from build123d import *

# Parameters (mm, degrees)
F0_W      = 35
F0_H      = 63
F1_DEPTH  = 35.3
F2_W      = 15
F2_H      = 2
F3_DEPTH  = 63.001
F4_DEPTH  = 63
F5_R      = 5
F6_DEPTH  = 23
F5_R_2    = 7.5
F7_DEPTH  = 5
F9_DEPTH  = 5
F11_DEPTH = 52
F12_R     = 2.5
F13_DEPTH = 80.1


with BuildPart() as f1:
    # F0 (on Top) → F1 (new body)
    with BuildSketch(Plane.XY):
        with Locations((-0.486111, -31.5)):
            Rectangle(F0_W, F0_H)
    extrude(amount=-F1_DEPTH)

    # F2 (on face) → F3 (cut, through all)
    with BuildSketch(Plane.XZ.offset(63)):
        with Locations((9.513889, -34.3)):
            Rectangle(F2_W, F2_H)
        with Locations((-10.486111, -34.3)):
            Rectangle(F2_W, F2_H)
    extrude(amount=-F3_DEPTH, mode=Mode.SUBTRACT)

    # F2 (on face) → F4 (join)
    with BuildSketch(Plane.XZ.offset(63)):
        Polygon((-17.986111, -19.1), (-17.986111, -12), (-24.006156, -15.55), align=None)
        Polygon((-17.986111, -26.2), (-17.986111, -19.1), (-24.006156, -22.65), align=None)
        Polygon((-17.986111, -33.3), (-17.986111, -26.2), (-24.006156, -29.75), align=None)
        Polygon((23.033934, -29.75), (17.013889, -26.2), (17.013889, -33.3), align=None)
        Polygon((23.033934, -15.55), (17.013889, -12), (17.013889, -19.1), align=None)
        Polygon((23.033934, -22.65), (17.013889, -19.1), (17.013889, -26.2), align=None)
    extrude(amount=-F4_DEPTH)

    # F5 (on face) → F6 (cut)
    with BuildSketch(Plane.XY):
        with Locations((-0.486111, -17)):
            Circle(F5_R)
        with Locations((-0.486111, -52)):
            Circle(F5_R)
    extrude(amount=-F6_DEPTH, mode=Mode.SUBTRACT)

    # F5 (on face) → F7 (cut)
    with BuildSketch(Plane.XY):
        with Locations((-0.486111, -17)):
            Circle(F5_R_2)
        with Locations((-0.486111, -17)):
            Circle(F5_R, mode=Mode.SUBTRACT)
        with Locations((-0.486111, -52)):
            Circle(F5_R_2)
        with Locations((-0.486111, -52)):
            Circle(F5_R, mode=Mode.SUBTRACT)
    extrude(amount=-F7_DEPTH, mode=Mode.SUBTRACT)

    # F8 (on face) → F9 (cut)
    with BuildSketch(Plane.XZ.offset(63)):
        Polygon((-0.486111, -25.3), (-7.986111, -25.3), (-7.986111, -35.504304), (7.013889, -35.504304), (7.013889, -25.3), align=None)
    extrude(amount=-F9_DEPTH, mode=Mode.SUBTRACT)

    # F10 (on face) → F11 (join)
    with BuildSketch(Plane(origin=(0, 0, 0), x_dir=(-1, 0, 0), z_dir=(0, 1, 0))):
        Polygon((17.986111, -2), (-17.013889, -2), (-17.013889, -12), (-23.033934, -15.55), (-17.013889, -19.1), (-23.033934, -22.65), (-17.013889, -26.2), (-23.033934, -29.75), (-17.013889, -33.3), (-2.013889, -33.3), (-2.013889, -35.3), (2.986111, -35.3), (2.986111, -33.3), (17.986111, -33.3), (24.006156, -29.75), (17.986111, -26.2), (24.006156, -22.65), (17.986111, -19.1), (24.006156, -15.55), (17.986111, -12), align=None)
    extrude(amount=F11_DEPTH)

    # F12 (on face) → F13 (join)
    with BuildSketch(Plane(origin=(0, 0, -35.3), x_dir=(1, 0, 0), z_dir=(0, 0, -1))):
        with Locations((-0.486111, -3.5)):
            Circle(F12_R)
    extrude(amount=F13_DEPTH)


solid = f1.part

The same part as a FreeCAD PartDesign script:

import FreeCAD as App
import Part
import Sketcher

V = App.Vector


def add_polygon(sketch, points):
    """Adds a closed chain of lines whose ends are joined by coincident constraints."""
    first, n = sketch.GeometryCount, len(points)
    for a, b in zip(points, points[1:] + points[:1]):
        sketch.addGeometry(Part.LineSegment(App.Vector(*a, 0), App.Vector(*b, 0)), False)
    for i in range(n):
        sketch.addConstraint(Sketcher.Constraint("Coincident", first + i, 2, first + (i + 1) % n, 1))

doc = App.newDocument("Part")
body = doc.addObject("PartDesign::Body", "Body")

# Sketch on XY plane
sketch1 = doc.addObject("Sketcher::SketchObject", "Sketch")
body.addObject(sketch1)
sketch1.AttachmentSupport = (doc.XY_Plane, [""])
sketch1.MapMode = "FlatFace"
add_polygon(sketch1, [(-18, 0), (-18, -63), (17, -63), (17, 0)])  # lines 0-3
sketch1.addConstraint([
    Sketcher.Constraint("Vertical", 0),
    Sketcher.Constraint("Horizontal", 1),
    Sketcher.Constraint("Vertical", 2),
    Sketcher.Constraint("Horizontal", 3),
    Sketcher.Constraint("PointOnObject", 2, 2, -1),
    Sketcher.Constraint("DistanceX", 1, 1, 1, 2, 35.0),
    Sketcher.Constraint("DistanceY", 0, 2, 0, 1, 63.0),
    Sketcher.Constraint("DistanceX", 0, 2, -1, 1, 17.986111),
])
pad1 = doc.addObject("PartDesign::Pad", "Pad")
body.addObject(pad1)
pad1.Profile = sketch1
pad1.Length = 35.3
pad1.Reversed = True

# Sketch on XZ plane
sketch2 = doc.addObject("Sketcher::SketchObject", "Sketch001")
body.addObject(sketch2)
sketch2.AttachmentSupport = (doc.XZ_Plane, [""])
sketch2.MapMode = "FlatFace"
sketch2.AttachmentOffset = App.Placement(V(0, 0, 63), App.Rotation())
add_polygon(sketch2, [(2, -33.3), (2, -35.3), (17, -35.3), (17, -33.3)])  # lines 0-3
add_polygon(sketch2, [(-18, -33.3), (-18, -35.3), (-3, -35.3), (-3, -33.3)])  # lines 4-7
sketch2.addConstraint([
    Sketcher.Constraint("Vertical", 0),
    Sketcher.Constraint("Horizontal", 1),
    Sketcher.Constraint("Vertical", 2),
    Sketcher.Constraint("Horizontal", 3),
    Sketcher.Constraint("Vertical", 4),
    Sketcher.Constraint("Horizontal", 5),
    Sketcher.Constraint("Vertical", 6),
    Sketcher.Constraint("Horizontal", 7),
    Sketcher.Constraint("Horizontal", 1, 2, 4, 2),
    Sketcher.Constraint("Horizontal", 3, 2, 6, 2),
    Sketcher.Constraint("Equal", 3, 5),
    Sketcher.Constraint("DistanceX", 1, 1, 1, 2, 15.0),
    Sketcher.Constraint("DistanceY", 0, 2, 0, 1, 2.0),
    Sketcher.Constraint("DistanceX", 4, 2, 0, 2, 20.0),
    Sketcher.Constraint("DistanceY", 0, 2, -1, 1, 35.3),
    Sketcher.Constraint("DistanceX", -1, 1, 0, 2, 2.013889),
])
pocket1 = doc.addObject("PartDesign::Pocket", "Pocket")
body.addObject(pocket1)
pocket1.Profile = sketch2
pocket1.Type = "ThroughAll"

# Sketch on XZ plane
sketch3 = doc.addObject("Sketcher::SketchObject", "Sketch002")
body.addObject(sketch3)
sketch3.AttachmentSupport = (doc.XZ_Plane, [""])
sketch3.MapMode = "FlatFace"
sketch3.AttachmentOffset = App.Placement(V(0, 0, 63), App.Rotation())
add_polygon(sketch3, [(-18, -19), (-18, -12), (-24, -16)])  # lines 0-2
add_polygon(sketch3, [(-18, -26), (-18, -19), (-24, -23)])  # lines 3-5
add_polygon(sketch3, [(-18, -33), (-18, -26), (-24, -30)])  # lines 6-8
add_polygon(sketch3, [(23, -30), (17, -26), (17, -33)])  # lines 9-11
add_polygon(sketch3, [(23, -16), (17, -12), (17, -19)])  # lines 12-14
add_polygon(sketch3, [(23, -23), (17, -19), (17, -26)])  # lines 15-17
sketch3.addConstraint([
    Sketcher.Constraint("Vertical", 0),
    Sketcher.Constraint("Vertical", 3),
    Sketcher.Constraint("Vertical", 6),
    Sketcher.Constraint("Vertical", 10),
    Sketcher.Constraint("Vertical", 13),
    Sketcher.Constraint("Vertical", 16),
    Sketcher.Constraint("Coincident", 3, 2, 2, 2),
    Sketcher.Constraint("Coincident", 6, 2, 5, 2),
    Sketcher.Constraint("Coincident", 15, 2, 13, 2),
    Sketcher.Constraint("Coincident", 16, 2, 9, 2),
    Sketcher.Constraint("Parallel", 1, 4),
    Sketcher.Constraint("Parallel", 2, 5),
    Sketcher.Constraint("Parallel", 4, 7),
    Sketcher.Constraint("Parallel", 5, 8),
    Sketcher.Constraint("Parallel", 8, 9),
    Sketcher.Constraint("Parallel", 7, 11),
    Sketcher.Constraint("Parallel", 9, 12),
    Sketcher.Constraint("Parallel", 11, 14),
    Sketcher.Constraint("Parallel", 12, 15),
    Sketcher.Constraint("Parallel", 14, 17),
    Sketcher.Constraint("Horizontal", 6, 2, 9, 2),
    Sketcher.Constraint("Horizontal", 8, 2, 10, 2),
    Sketcher.Constraint("Horizontal", 7, 2, 11, 2),
    Sketcher.Constraint("Horizontal", 0, 2, 12, 2),
    Sketcher.Constraint("Horizontal", 3, 2, 13, 2),
    Sketcher.Constraint("Vertical", 1, 2, 4, 2),
    Sketcher.Constraint("Vertical", 4, 2, 7, 2),
    Sketcher.Constraint("DistanceY", 0, 1, 0, 2, 7.1),
    Sketcher.Constraint("DistanceY", 0, 2, -1, 1, 12.0),
    Sketcher.Constraint("DistanceX", 5, 2, 9, 2, 35.0),
    Sketcher.Constraint("Distance", 1, 6.988808),
    Sketcher.Constraint("DistanceX", 0, 2, -1, 1, 17.986111),
])
pad2 = doc.addObject("PartDesign::Pad", "Pad001")
body.addObject(pad2)
pad2.Profile = sketch3
pad2.Length = 63
pad2.Reversed = True

# Sketch on XY plane
sketch4 = doc.addObject("Sketcher::SketchObject", "Sketch003")
body.addObject(sketch4)
sketch4.AttachmentSupport = (doc.XY_Plane, [""])
sketch4.MapMode = "FlatFace"
sketch4.addGeometry([
    Part.Circle(V(0, -17, 0), V(0, 0, 1), 5),
    Part.Circle(V(0, -52, 0), V(0, 0, 1), 5),
], False)
sketch4.addConstraint([
    Sketcher.Constraint("Equal", 0, 1),
    Sketcher.Constraint("Vertical", 0, 3, 1, 3),
    Sketcher.Constraint("Diameter", 0, 10.0),
    Sketcher.Constraint("DistanceY", 0, 3, -1, 1, 17.0),
    Sketcher.Constraint("DistanceY", 1, 3, -1, 1, 52.0),
    Sketcher.Constraint("DistanceX", 0, 3, -1, 1, 0.486111),
])
pocket2 = doc.addObject("PartDesign::Pocket", "Pocket001")
body.addObject(pocket2)
pocket2.Profile = sketch4
pocket2.Length = 23

# Sketch on XY plane
sketch5 = doc.addObject("Sketcher::SketchObject", "Sketch004")
body.addObject(sketch5)
sketch5.AttachmentSupport = (doc.XY_Plane, [""])
sketch5.MapMode = "FlatFace"
sketch5.addGeometry([
    Part.Circle(V(0, -17, 0), V(0, 0, 1), 8),
    Part.Circle(V(0, -17, 0), V(0, 0, 1), 5),
    Part.Circle(V(0, -52, 0), V(0, 0, 1), 8),
    Part.Circle(V(0, -52, 0), V(0, 0, 1), 5),
], False)
sketch5.addConstraint([
    Sketcher.Constraint("Coincident", 1, 3, 0, 3),
    Sketcher.Constraint("Coincident", 3, 3, 2, 3),
    Sketcher.Constraint("Equal", 0, 2),
    Sketcher.Constraint("Equal", 1, 3),
    Sketcher.Constraint("Vertical", 1, 3, 2, 3),
    Sketcher.Constraint("Diameter", 0, 15.0),
    Sketcher.Constraint("Diameter", 1, 10.0),
    Sketcher.Constraint("DistanceY", 0, 3, -1, 1, 17.0),
    Sketcher.Constraint("DistanceY", 2, 3, -1, 1, 52.0),
    Sketcher.Constraint("DistanceX", 0, 3, -1, 1, 0.486111),
])
pocket3 = doc.addObject("PartDesign::Pocket", "Pocket002")
body.addObject(pocket3)
pocket3.Profile = sketch5
pocket3.Length = 5

# Sketch on XZ plane
sketch6 = doc.addObject("Sketcher::SketchObject", "Sketch005")
body.addObject(sketch6)
sketch6.AttachmentSupport = (doc.XZ_Plane, [""])
sketch6.MapMode = "FlatFace"
sketch6.AttachmentOffset = App.Placement(V(0, 0, 63), App.Rotation())
add_polygon(sketch6, [(-8, -25), (-8, -36), (7, -36), (7, -25)])  # lines 0-3
sketch6.addConstraint([
    Sketcher.Constraint("Vertical", 0),
    Sketcher.Constraint("Horizontal", 1),
    Sketcher.Constraint("Vertical", 2),
    Sketcher.Constraint("Horizontal", 3),
    Sketcher.Constraint("DistanceX", 1, 1, 1, 2, 15.0),
    Sketcher.Constraint("DistanceY", 2, 2, -1, 1, 25.3),
    Sketcher.Constraint("DistanceY", 0, 2, 0, 1, 10.204304),
    Sketcher.Constraint("DistanceX", 0, 2, -1, 1, 7.986111),
])
pocket4 = doc.addObject("PartDesign::Pocket", "Pocket003")
body.addObject(pocket4)
pocket4.Profile = sketch6
pocket4.Length = 5

# Sketch on XZ plane
sketch7 = doc.addObject("Sketcher::SketchObject", "Sketch006")
body.addObject(sketch7)
sketch7.AttachmentSupport = (doc.XZ_Plane, [""])
sketch7.MapMode = "FlatFace"
add_polygon(sketch7, [(-18, -2), (17, -2), (17, -12), (23, -15.6), (17, -19.1), (23, -22.6), (17, -26.2), (23, -29.8), (17, -33.3), (2, -33.3), (2, -35.3), (-3, -35.3), (-3, -33.3), (-18, -33.3), (-24, -29.8), (-18, -26.2), (-24, -22.6), (-18, -19.1), (-24, -15.6), (-18, -12)])  # lines 0-19
sketch7.addConstraint([
    Sketcher.Constraint("Horizontal", 0),
    Sketcher.Constraint("Vertical", 1),
    Sketcher.Constraint("Horizontal", 8),
    Sketcher.Constraint("Vertical", 9),
    Sketcher.Constraint("Horizontal", 10),
    Sketcher.Constraint("Vertical", 11),
    Sketcher.Constraint("Horizontal", 12),
    Sketcher.Constraint("Vertical", 19),
    Sketcher.Constraint("Parallel", 2, 4),
    Sketcher.Constraint("Parallel", 3, 5),
    Sketcher.Constraint("Parallel", 4, 6),
    Sketcher.Constraint("Parallel", 5, 7),
    Sketcher.Constraint("Parallel", 6, 13),
    Sketcher.Constraint("Parallel", 7, 14),
    Sketcher.Constraint("Parallel", 13, 15),
    Sketcher.Constraint("Parallel", 14, 16),
    Sketcher.Constraint("Parallel", 15, 17),
    Sketcher.Constraint("Parallel", 16, 18),
    Sketcher.Constraint("Horizontal", 8, 2, 11, 2),
    Sketcher.Constraint("Horizontal", 6, 2, 13, 2),
    Sketcher.Constraint("Horizontal", 5, 2, 14, 2),
    Sketcher.Constraint("Horizontal", 4, 2, 15, 2),
    Sketcher.Constraint("Horizontal", 3, 2, 16, 2),
    Sketcher.Constraint("Horizontal", 2, 2, 17, 2),
    Sketcher.Constraint("Horizontal", 1, 2, 18, 2),
    Sketcher.Constraint("Vertical", 1, 2, 3, 2),
    Sketcher.Constraint("Vertical", 2, 2, 4, 2),
    Sketcher.Constraint("Vertical", 3, 2, 5, 2),
    Sketcher.Constraint("Vertical", 4, 2, 6, 2),
    Sketcher.Constraint("Vertical", 5, 2, 7, 2),
    Sketcher.Constraint("Vertical", 12, 2, 14, 2),
    Sketcher.Constraint("Equal", 8, 12),
    Sketcher.Constraint("DistanceX", 0, 1, 0, 2, 35.0),
    Sketcher.Constraint("DistanceX", 8, 2, 8, 1, 15.0),
    Sketcher.Constraint("DistanceY", 1, 2, 1, 1, 10.0),
    Sketcher.Constraint("DistanceY", 9, 2, 9, 1, 2.0),
    Sketcher.Constraint("DistanceY", 0, 2, -1, 1, 2.0),
    Sketcher.Constraint("DistanceY", 3, 2, -1, 1, 19.1),
    Sketcher.Constraint("Distance", 2, 6.988808),
    Sketcher.Constraint("DistanceX", -1, 1, 0, 2, 17.013889),
])
pad3 = doc.addObject("PartDesign::Pad", "Pad002")
body.addObject(pad3)
pad3.Profile = sketch7
pad3.Length = 52
pad3.Reversed = True

# Sketch on XY plane
sketch8 = doc.addObject("Sketcher::SketchObject", "Sketch007")
body.addObject(sketch8)
sketch8.AttachmentSupport = (doc.XY_Plane, [""])
sketch8.MapMode = "FlatFace"
sketch8.AttachmentOffset = App.Placement(V(0, 0, -35.3), App.Rotation())
sketch8.addGeometry(Part.Circle(V(-0.5, 3.5, 0), V(0, 0, 1), 2.5), False)
sketch8.addConstraint([
    Sketcher.Constraint("Diameter", 0, 5.0),
    Sketcher.Constraint("DistanceY", -1, 1, 0, 3, 3.5),
    Sketcher.Constraint("DistanceX", 0, 3, -1, 1, 0.486111),
])
pad4 = doc.addObject("PartDesign::Pad", "Pad003")
body.addObject(pad4)
pad4.Profile = sketch8
pad4.Length = 80.1
pad4.Reversed = True

doc.recompute()
